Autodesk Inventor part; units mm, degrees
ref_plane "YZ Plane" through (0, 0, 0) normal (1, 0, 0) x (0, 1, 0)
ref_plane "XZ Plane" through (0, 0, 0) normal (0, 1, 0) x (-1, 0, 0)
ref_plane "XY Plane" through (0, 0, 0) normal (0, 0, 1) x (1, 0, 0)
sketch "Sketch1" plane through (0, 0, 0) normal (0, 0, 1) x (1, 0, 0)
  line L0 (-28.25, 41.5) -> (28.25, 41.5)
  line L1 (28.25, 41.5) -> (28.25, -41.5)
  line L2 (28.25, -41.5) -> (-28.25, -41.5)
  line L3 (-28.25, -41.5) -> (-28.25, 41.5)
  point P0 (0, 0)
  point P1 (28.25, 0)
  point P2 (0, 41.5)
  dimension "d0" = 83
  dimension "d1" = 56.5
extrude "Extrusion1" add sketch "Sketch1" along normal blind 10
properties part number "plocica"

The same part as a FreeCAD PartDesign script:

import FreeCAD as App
import Part
import Sketcher
from FreeCAD import Vector
Q = App.Units.Quantity


def add_polygon(sketch, points):
    """Adds a closed chain of lines whose ends are joined by coincident constraints."""
    first, n = sketch.GeometryCount, len(points)
    for a, b in zip(points, points[1:] + points[:1]):
        sketch.addGeometry(Part.LineSegment(App.Vector(*a, 0), App.Vector(*b, 0)), False)
    for i in range(n):
        sketch.addConstraint(Sketcher.Constraint("Coincident", first + i, 2, first + (i + 1) % n, 1))

doc = App.newDocument("Part")
body = doc.addObject("PartDesign::Body", "Body")

# Sketch on XY plane
sketch1 = body.newObject("Sketcher::SketchObject", "Sketch")
sketch1.AttachmentSupport = (doc.getObject("XY_Plane"), [""])
sketch1.MapMode = "FlatFace"
add_polygon(sketch1, [(28, 42), (-28, 42), (-28, -42), (28, -42)])  # lines 0-3
sketch1.addConstraint([
    Sketcher.Constraint("Horizontal", 0),
    Sketcher.Constraint("Vertical", 1),
    Sketcher.Constraint("Horizontal", 2),
    Sketcher.Constraint("Vertical", 3),
    Sketcher.Constraint("Symmetric", 0, 2, 2, 2, -1, 1),
    Sketcher.Constraint("DistanceY", 1, 2, 1, 1, Q("83 mm")),
    Sketcher.Constraint("DistanceX", 0, 2, 0, 1, Q("56.5 mm")),
])
pad1 = body.newObject("PartDesign::Pad", "Pad")
pad1.Profile = sketch1
pad1.Length = 10

doc.recompute()
